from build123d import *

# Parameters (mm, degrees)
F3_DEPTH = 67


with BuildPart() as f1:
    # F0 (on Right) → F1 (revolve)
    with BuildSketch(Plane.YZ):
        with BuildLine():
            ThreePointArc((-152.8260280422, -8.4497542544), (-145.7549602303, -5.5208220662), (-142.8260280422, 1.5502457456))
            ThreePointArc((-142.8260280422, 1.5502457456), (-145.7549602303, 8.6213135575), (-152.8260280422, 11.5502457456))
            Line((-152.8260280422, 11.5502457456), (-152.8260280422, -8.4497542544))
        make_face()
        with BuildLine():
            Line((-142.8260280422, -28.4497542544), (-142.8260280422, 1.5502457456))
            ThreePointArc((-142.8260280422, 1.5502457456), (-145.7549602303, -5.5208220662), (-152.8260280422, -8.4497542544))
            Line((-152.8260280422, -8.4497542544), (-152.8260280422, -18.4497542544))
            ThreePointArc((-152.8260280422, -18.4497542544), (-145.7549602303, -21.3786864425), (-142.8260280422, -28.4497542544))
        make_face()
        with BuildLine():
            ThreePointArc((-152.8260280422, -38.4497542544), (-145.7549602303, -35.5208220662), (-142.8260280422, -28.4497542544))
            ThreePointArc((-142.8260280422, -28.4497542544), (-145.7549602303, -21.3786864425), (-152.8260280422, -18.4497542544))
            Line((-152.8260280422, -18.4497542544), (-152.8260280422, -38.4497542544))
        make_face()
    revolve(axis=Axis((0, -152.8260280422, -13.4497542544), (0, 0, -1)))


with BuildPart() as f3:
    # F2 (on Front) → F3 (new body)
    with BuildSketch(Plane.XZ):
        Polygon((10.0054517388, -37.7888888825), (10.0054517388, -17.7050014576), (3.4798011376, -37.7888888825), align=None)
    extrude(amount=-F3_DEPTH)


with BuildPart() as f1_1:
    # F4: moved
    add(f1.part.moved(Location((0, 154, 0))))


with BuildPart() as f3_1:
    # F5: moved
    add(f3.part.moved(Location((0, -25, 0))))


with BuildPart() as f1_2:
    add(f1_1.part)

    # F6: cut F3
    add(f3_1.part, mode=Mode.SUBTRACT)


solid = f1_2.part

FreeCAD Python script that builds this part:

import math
import FreeCAD as App
import Part
import Sketcher
from FreeCAD import Vector
Q = App.Units.Quantity


def add_polygon(sketch, points):
    """Adds a closed chain of lines whose ends are joined by coincident constraints."""
    first, n = sketch.GeometryCount, len(points)
    for a, b in zip(points, points[1:] + points[:1]):
        sketch.addGeometry(Part.LineSegment(App.Vector(*a, 0), App.Vector(*b, 0)), False)
    for i in range(n):
        sketch.addConstraint(Sketcher.Constraint("Coincident", first + i, 2, first + (i + 1) % n, 1))

doc = App.newDocument("Part")
body = doc.addObject("PartDesign::Body", "Body")

sketch1 = body.newObject("Sketcher::SketchObject", "Sketch")
sketch1.AttachmentSupport = (doc.getObject("YZ_Plane"), [""])
sketch1.MapMode = "FlatFace"
sketch1.addGeometry(Part.ArcOfCircle(Part.Circle(Vector(-153, 2, 0), Vector(0, 0, 1), 10), math.radians(0), math.radians(90)), False)
sketch1.addGeometry(Part.LineSegment(Vector(-153, 12, 0), Vector(-153, -38, 0)), False)
sketch1.addGeometry(Part.ArcOfCircle(Part.Circle(Vector(-153, -28, 0), Vector(0, 0, 1), 10), math.radians(-90), math.radians(0)), False)
sketch1.addGeometry(Part.LineSegment(Vector(-143, -28, 0), Vector(-143, 2, 0)), False)
sketch1.addGeometry(Part.LineSegment(Vector(-153, 12, 0), Vector(-153, -38, 0)), True)
sketch1.addConstraint(Sketcher.Constraint("Coincident", 0, 2, 1, 1))
sketch1.addConstraint(Sketcher.Constraint("Coincident", 1, 2, 2, 1))
sketch1.addConstraint(Sketcher.Constraint("Tangent", 2, 2, 3, 1))
sketch1.addConstraint(Sketcher.Constraint("Tangent", 3, 2, 0, 1))
sketch1.addConstraint(Sketcher.Constraint("Vertical", 1))
sketch1.addConstraint(Sketcher.Constraint("Vertical", 3))
sketch1.addConstraint(Sketcher.Constraint("Vertical", 4))
sketch1.addConstraint(Sketcher.Constraint("Coincident", 4, 1, 0, 2))
sketch1.addConstraint(Sketcher.Constraint("Equal", 0, 2))
sketch1.addConstraint(Sketcher.Constraint("Vertical", 2, 3, 0, 2))
sketch1.addConstraint(Sketcher.Constraint("Equal", 1, 4))
sketch1.addConstraint(Sketcher.Constraint("Radius", 0, Q("10 mm")))
sketch1.addConstraint(Sketcher.Constraint("DistanceY", 1, 2, 1, 1, Q("50 mm")))
sketch1.addConstraint(Sketcher.Constraint("DistanceX", 0, 3, -1, 1, Q("152.826028 mm")))
sketch1.addConstraint(Sketcher.Constraint("DistanceY", -1, 1, 0, 3, Q("1.550246 mm")))
revolution = body.newObject("PartDesign::Revolution", "Revolution")
revolution.Profile = sketch1
revolution.ReferenceAxis = (sketch1, ["Axis0"])
revolution.Angle = 360
body2 = doc.addObject("PartDesign::Body", "Body001")

sketch2 = body2.newObject("Sketcher::SketchObject", "Sketch001")
sketch2.AttachmentSupport = (doc.getObject("XZ_Plane001"), [""])
sketch2.MapMode = "FlatFace"
add_polygon(sketch2, [(10, -38), (10, -18), (3, -38)])
sketch2.addConstraint(Sketcher.Constraint("Vertical", 0))
sketch2.addConstraint(Sketcher.Constraint("Horizontal", 2))
sketch2.addConstraint(Sketcher.Constraint("Angle", 1, Q("-108 deg")))
sketch2.addConstraint(Sketcher.Constraint("DistanceY", 0, 2, -1, 1, Q("17.705001 mm")))
sketch2.addConstraint(Sketcher.Constraint("DistanceX", 2, 1, 2, 2, Q("6.525651 mm")))
sketch2.addConstraint(Sketcher.Constraint("DistanceX", -1, 1, 1, 2, Q("3.479801 mm")))
pad1 = body2.newObject("PartDesign::Pad", "Pad")
pad1.Profile = sketch2
pad1.Length = 67
pad1.Reversed = True
body3 = doc.addObject("PartDesign::Body", "Body002")
doc.recompute()

body.Placement = App.Placement(Vector(0, 154, 0), App.Rotation(Vector(0, 0, 1), 0))
boolean = body3.newObject("PartDesign::Boolean", "Boolean")
boolean.Type = "Fuse"
boolean.addObjects([body])
body4 = doc.addObject("PartDesign::Body", "Body003")
doc.recompute()

body2.Placement = App.Placement(Vector(0, -25, 0), App.Rotation(Vector(0, 0, 1), 0))
boolean2 = body4.newObject("PartDesign::Boolean", "Boolean001")
boolean2.Type = "Fuse"
boolean2.addObjects([body2])
doc.recompute()

boolean3 = body3.newObject("PartDesign::Boolean", "Boolean002")
boolean3.Type = "Cut"
boolean3.addObjects([body4])

doc.recompute()
